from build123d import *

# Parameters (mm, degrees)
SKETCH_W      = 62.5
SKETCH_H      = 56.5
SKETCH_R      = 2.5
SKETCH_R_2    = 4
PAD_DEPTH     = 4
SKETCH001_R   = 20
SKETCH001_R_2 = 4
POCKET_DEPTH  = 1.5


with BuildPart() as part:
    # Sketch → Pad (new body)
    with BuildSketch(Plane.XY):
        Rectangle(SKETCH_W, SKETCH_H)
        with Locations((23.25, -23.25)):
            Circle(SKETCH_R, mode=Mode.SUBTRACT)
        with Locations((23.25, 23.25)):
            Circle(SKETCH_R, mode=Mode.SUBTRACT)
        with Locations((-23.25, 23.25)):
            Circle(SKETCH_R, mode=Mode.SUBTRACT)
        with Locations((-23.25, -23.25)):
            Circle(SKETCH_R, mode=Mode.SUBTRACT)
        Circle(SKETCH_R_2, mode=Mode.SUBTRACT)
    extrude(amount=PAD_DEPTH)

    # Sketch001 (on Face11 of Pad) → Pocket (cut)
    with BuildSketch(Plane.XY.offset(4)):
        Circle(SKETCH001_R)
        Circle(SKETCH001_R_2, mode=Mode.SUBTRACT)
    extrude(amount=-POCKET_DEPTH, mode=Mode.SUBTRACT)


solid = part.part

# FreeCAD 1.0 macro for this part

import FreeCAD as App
import Part
import Sketcher
from FreeCAD import Vector

doc = App.newDocument("Part")
body = doc.addObject("PartDesign::Body", "Body")

# Sketch on XY plane
sketch1 = body.newObject("Sketcher::SketchObject", "Sketch")
sketch1.AttachmentSupport = (doc.getObject("XY_Plane"), [""])
sketch1.MapMode = "FlatFace"
sketch1.addGeometry([
    Part.LineSegment(Vector(-31.2, 28.2, 0), Vector(-31.2, -28.2, 0)),  # 0
    Part.LineSegment(Vector(-31.2, -28.2, 0), Vector(31.2, -28.2, 0)),  # 1
    Part.LineSegment(Vector(31.2, -28.2, 0), Vector(31.2, 28.2, 0)),  # 2
    Part.LineSegment(Vector(31.2, 28.2, 0), Vector(-31.2, 28.2, 0)),  # 3
    Part.Circle(Vector(-23.2, -23.2, 0), Vector(0, 0, 1), 2.5),  # 4
    Part.Circle(Vector(0, 0, 0), Vector(0, 0, 1), 4),  # 5
    Part.Circle(Vector(23.2, -23.2, 0), Vector(0, 0, 1), 2.5),  # 6
    Part.Circle(Vector(-23.2, 23.2, 0), Vector(0, 0, 1), 2.5),  # 7
    Part.Circle(Vector(23.2, 23.2, 0), Vector(0, 0, 1), 2.5),  # 8
], False)
sketch1.addConstraint([
    Sketcher.Constraint("Coincident", 0, 2, 1, 1),
    Sketcher.Constraint("Coincident", 1, 2, 2, 1),
    Sketcher.Constraint("Coincident", 2, 2, 3, 1),
    Sketcher.Constraint("Coincident", 3, 2, 0, 1),
    Sketcher.Constraint("Vertical", 0),
    Sketcher.Constraint("Horizontal", 1),
    Sketcher.Constraint("Vertical", 2),
    Sketcher.Constraint("Horizontal", 3),
    Sketcher.Constraint("Coincident", 5, 3, -1, 1),
    Sketcher.Constraint("Equal", 4, 6),
    Sketcher.Constraint("Equal", 6, 7),
    Sketcher.Constraint("Equal", 7, 8),
    Sketcher.Constraint("Symmetric", 6, 3, 7, 3, -1, 1),
    Sketcher.Constraint("Symmetric", 4, 3, 8, 3, -1, 1),
    Sketcher.Constraint("Symmetric", 0, 2, 2, 2, -1, 1),
    Sketcher.Constraint("Symmetric", 4, 3, 6, 3, -2),
    Sketcher.Constraint("Diameter", 4, 5.0),
    Sketcher.Constraint("Diameter", 5, 8.0),
    Sketcher.Constraint("DistanceX", 1, 1, 1, 2, 62.5),
    Sketcher.Constraint("DistanceY", 0, 2, 0, 1, 56.5),
    Sketcher.Constraint("DistanceX", 0, 2, 4, 3, 8.0),
    Sketcher.Constraint("DistanceY", 0, 2, 4, 3, 5.0),
])
pad1 = body.newObject("PartDesign::Pad", "Pad")
pad1.Profile = sketch1
pad1.Length = 4

# Sketch on XY plane
sketch2 = body.newObject("Sketcher::SketchObject", "Sketch001")
sketch2.AttachmentSupport = (doc.getObject("XY_Plane"), [""])
sketch2.MapMode = "FlatFace"
sketch2.AttachmentOffset = App.Placement(Vector(0, 0, 4), App.Rotation())
sketch2.addGeometry([
    Part.Circle(Vector(0, 0, 0), Vector(0, 0, 1), 20),
    Part.Circle(Vector(0, 0, 0), Vector(0, 0, 1), 4),
], False)
sketch2.addConstraint([
    Sketcher.Constraint("Coincident", 0, 3, -1, 1),
    Sketcher.Constraint("Coincident", 1, 3, -1, 1),
    Sketcher.Constraint("Diameter", 0, 40.0),
    Sketcher.Constraint("Diameter", 1, 8.0),
])
pocket1 = body.newObject("PartDesign::Pocket", "Pocket")
pocket1.Profile = sketch2
pocket1.Length = 1.5

doc.recompute()
